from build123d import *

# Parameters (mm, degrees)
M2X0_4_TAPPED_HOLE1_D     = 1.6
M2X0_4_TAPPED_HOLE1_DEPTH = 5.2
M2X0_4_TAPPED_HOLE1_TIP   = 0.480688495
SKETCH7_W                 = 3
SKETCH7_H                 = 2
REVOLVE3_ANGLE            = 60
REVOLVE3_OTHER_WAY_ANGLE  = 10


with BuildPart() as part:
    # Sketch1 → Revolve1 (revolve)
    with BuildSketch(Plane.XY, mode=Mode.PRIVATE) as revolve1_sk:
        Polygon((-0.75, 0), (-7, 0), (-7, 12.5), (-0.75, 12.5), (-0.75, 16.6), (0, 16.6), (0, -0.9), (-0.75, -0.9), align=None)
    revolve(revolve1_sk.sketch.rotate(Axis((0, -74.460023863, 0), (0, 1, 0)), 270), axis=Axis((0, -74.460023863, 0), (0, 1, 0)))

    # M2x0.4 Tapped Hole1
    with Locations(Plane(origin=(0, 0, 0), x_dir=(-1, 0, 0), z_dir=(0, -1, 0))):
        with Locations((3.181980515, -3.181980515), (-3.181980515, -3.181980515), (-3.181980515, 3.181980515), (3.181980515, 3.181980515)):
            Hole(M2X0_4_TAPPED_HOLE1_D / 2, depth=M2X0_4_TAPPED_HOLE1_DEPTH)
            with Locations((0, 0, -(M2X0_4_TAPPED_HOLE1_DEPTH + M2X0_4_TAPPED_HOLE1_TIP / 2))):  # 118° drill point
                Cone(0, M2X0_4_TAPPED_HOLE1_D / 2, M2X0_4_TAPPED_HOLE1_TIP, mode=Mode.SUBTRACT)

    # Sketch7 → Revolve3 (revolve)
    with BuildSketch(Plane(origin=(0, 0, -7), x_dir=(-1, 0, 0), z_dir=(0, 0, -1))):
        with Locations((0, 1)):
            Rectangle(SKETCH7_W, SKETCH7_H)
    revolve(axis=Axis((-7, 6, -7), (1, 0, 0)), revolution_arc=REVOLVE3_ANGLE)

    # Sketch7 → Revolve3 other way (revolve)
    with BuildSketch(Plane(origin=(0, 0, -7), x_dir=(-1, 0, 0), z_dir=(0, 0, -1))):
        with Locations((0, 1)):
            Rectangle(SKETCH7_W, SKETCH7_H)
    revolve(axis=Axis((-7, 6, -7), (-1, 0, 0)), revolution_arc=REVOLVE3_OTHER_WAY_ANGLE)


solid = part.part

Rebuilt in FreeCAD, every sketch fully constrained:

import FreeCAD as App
import Part
import Sketcher


def add_polygon(sketch, points):
    """Adds a closed chain of lines whose ends are joined by coincident constraints."""
    first, n = sketch.GeometryCount, len(points)
    for a, b in zip(points, points[1:] + points[:1]):
        sketch.addGeometry(Part.LineSegment(App.Vector(*a, 0), App.Vector(*b, 0)), False)
    for i in range(n):
        sketch.addConstraint(Sketcher.Constraint("Coincident", first + i, 2, first + (i + 1) % n, 1))

doc = App.newDocument("Part")
body = doc.addObject("PartDesign::Body", "Body")
body.AllowCompound = True

# Sketch on XY plane
sketch1 = body.newObject("Sketcher::SketchObject", "Sketch")
sketch1.AttachmentSupport = (doc.getObject("XY_Plane"), [""])
sketch1.MapMode = "FlatFace"
add_polygon(sketch1, [(-7, 0), (-0.8, 0), (-0.8, -0.9), (0, -0.9), (0, 16.6), (-0.8, 16.6), (-0.8, 12.5), (-7, 12.5)])  # lines 0-7
sketch1.addConstraint([
    Sketcher.Constraint("Horizontal", 0),
    Sketcher.Constraint("Vertical", 1),
    Sketcher.Constraint("Horizontal", 2),
    Sketcher.Constraint("Vertical", 3),
    Sketcher.Constraint("Horizontal", 4),
    Sketcher.Constraint("Vertical", 5),
    Sketcher.Constraint("Horizontal", 6),
    Sketcher.Constraint("Vertical", 7),
    Sketcher.Constraint("PointOnObject", 0, 2, -1),
    Sketcher.Constraint("PointOnObject", 2, 2, -2),
    Sketcher.Constraint("Vertical", 1, 2, 4, 2),
    Sketcher.Constraint("DistanceY", 1, 2, 1, 1, 0.9),
    Sketcher.Constraint("DistanceY", 3, 1, 3, 2, 17.5),
    Sketcher.Constraint("DistanceY", 5, 2, 5, 1, 4.1),
    Sketcher.Constraint("DistanceX", 6, 2, -1, 1, 7.0),
    Sketcher.Constraint("DistanceX", 0, 1, 0, 2, 6.25),
])
revolution = body.newObject("PartDesign::Revolution", "Revolution")
revolution.Profile = sketch1
revolution.ReferenceAxis = (sketch1, ["V_Axis"])
revolution.Angle = 360

# Sketch on XZ plane
sketch2 = body.newObject("Sketcher::SketchObject", "Sketch001")
sketch2.AttachmentSupport = (doc.getObject("XZ_Plane"), [""])
sketch2.MapMode = "FlatFace"
sketch2.addGeometry([
    Part.Circle(App.Vector(-3.2, 3.2, 0), App.Vector(0, 0, 1), 0.8),
    Part.Circle(App.Vector(3.2, 3.2, 0), App.Vector(0, 0, 1), 0.8),
    Part.Circle(App.Vector(3.2, -3.2, 0), App.Vector(0, 0, 1), 0.8),
    Part.Circle(App.Vector(-3.2, -3.2, 0), App.Vector(0, 0, 1), 0.8),
], False)
sketch2.addConstraint([
    Sketcher.Constraint("Equal", 0, 1),
    Sketcher.Constraint("Equal", 1, 2),
    Sketcher.Constraint("Equal", 2, 3),
    Sketcher.Constraint("Symmetric", 0, 3, 2, 3, -1, 1),
    Sketcher.Constraint("Symmetric", 1, 3, 3, 3, -1, 1),
    Sketcher.Constraint("Symmetric", 0, 3, 1, 3, -2),
    Sketcher.Constraint("Diameter", 0, 1.6),
    Sketcher.Constraint("DistanceX", 0, 3, -1, 1, 3.181981),
    Sketcher.Constraint("DistanceY", -1, 1, 0, 3, 3.181981),
])
doc.recompute()
hole = body.newObject("PartDesign::Hole", "Hole")
hole.Profile = sketch2
hole.ThreadType = "None"
hole.Diameter = 1.6
hole.DepthType = "Dimension"
hole.Depth = 5.2
hole.DrillPoint = "Angled"
hole.DrillPointAngle = 118

# Sketch on XY plane
sketch3 = body.newObject("Sketcher::SketchObject", "Sketch002")
sketch3.AttachmentSupport = (doc.getObject("XY_Plane"), [""])
sketch3.MapMode = "FlatFace"
sketch3.AttachmentOffset = App.Placement(App.Vector(0, 0, -7), App.Rotation())
add_polygon(sketch3, [(1.5, 2), (1.5, 0), (-1.5, 0), (-1.5, 2)])  # lines 0-3
sketch3.addGeometry(Part.LineSegment(App.Vector(-1.5, 6, 0), App.Vector(1.5, 6, 0)), True)  # axis
sketch3.addConstraint([
    Sketcher.Constraint("Vertical", 0),
    Sketcher.Constraint("Horizontal", 1),
    Sketcher.Constraint("Vertical", 2),
    Sketcher.Constraint("Horizontal", 3),
    Sketcher.Constraint("Horizontal", 4),
    Sketcher.Constraint("Symmetric", 0, 2, 1, 2, -1, 1),
    Sketcher.Constraint("Vertical", 2, 2, 4, 1),
    Sketcher.Constraint("Vertical", 3, 2, 4, 2),
    Sketcher.Constraint("DistanceX", 1, 2, 1, 1, 3.0),
    Sketcher.Constraint("DistanceY", 0, 2, 0, 1, 2.0),
    Sketcher.Constraint("DistanceY", -1, 1, 4, 1, 6.0),
])
revolution2 = body.newObject("PartDesign::Revolution", "Revolution001")
revolution2.Profile = sketch3
revolution2.ReferenceAxis = (sketch3, ["Axis0"])
revolution2.Angle = 60

# Sketch on XY plane
sketch4 = body.newObject("Sketcher::SketchObject", "Sketch003")
sketch4.AttachmentSupport = (doc.getObject("XY_Plane"), [""])
sketch4.MapMode = "FlatFace"
sketch4.AttachmentOffset = App.Placement(App.Vector(0, 0, -7), App.Rotation())
add_polygon(sketch4, [(1.5, 2), (1.5, 0), (-1.5, 0), (-1.5, 2)])  # lines 0-3
sketch4.addGeometry(Part.LineSegment(App.Vector(1.5, 6, 0), App.Vector(-1.5, 6, 0)), True)  # axis
sketch4.addConstraint([
    Sketcher.Constraint("Vertical", 0),
    Sketcher.Constraint("Horizontal", 1),
    Sketcher.Constraint("Vertical", 2),
    Sketcher.Constraint("Horizontal", 3),
    Sketcher.Constraint("Horizontal", 4),
    Sketcher.Constraint("Symmetric", 0, 2, 1, 2, -1, 1),
    Sketcher.Constraint("Vertical", 3, 2, 4, 1),
    Sketcher.Constraint("Vertical", 2, 2, 4, 2),
    Sketcher.Constraint("DistanceX", 1, 2, 1, 1, 3.0),
    Sketcher.Constraint("DistanceY", 0, 2, 0, 1, 2.0),
    Sketcher.Constraint("DistanceY", -1, 1, 4, 1, 6.0),
])
revolution3 = body.newObject("PartDesign::Revolution", "Revolution002")
revolution3.Profile = sketch4
revolution3.ReferenceAxis = (sketch4, ["Axis0"])
revolution3.Angle = 10

doc.recompute()
